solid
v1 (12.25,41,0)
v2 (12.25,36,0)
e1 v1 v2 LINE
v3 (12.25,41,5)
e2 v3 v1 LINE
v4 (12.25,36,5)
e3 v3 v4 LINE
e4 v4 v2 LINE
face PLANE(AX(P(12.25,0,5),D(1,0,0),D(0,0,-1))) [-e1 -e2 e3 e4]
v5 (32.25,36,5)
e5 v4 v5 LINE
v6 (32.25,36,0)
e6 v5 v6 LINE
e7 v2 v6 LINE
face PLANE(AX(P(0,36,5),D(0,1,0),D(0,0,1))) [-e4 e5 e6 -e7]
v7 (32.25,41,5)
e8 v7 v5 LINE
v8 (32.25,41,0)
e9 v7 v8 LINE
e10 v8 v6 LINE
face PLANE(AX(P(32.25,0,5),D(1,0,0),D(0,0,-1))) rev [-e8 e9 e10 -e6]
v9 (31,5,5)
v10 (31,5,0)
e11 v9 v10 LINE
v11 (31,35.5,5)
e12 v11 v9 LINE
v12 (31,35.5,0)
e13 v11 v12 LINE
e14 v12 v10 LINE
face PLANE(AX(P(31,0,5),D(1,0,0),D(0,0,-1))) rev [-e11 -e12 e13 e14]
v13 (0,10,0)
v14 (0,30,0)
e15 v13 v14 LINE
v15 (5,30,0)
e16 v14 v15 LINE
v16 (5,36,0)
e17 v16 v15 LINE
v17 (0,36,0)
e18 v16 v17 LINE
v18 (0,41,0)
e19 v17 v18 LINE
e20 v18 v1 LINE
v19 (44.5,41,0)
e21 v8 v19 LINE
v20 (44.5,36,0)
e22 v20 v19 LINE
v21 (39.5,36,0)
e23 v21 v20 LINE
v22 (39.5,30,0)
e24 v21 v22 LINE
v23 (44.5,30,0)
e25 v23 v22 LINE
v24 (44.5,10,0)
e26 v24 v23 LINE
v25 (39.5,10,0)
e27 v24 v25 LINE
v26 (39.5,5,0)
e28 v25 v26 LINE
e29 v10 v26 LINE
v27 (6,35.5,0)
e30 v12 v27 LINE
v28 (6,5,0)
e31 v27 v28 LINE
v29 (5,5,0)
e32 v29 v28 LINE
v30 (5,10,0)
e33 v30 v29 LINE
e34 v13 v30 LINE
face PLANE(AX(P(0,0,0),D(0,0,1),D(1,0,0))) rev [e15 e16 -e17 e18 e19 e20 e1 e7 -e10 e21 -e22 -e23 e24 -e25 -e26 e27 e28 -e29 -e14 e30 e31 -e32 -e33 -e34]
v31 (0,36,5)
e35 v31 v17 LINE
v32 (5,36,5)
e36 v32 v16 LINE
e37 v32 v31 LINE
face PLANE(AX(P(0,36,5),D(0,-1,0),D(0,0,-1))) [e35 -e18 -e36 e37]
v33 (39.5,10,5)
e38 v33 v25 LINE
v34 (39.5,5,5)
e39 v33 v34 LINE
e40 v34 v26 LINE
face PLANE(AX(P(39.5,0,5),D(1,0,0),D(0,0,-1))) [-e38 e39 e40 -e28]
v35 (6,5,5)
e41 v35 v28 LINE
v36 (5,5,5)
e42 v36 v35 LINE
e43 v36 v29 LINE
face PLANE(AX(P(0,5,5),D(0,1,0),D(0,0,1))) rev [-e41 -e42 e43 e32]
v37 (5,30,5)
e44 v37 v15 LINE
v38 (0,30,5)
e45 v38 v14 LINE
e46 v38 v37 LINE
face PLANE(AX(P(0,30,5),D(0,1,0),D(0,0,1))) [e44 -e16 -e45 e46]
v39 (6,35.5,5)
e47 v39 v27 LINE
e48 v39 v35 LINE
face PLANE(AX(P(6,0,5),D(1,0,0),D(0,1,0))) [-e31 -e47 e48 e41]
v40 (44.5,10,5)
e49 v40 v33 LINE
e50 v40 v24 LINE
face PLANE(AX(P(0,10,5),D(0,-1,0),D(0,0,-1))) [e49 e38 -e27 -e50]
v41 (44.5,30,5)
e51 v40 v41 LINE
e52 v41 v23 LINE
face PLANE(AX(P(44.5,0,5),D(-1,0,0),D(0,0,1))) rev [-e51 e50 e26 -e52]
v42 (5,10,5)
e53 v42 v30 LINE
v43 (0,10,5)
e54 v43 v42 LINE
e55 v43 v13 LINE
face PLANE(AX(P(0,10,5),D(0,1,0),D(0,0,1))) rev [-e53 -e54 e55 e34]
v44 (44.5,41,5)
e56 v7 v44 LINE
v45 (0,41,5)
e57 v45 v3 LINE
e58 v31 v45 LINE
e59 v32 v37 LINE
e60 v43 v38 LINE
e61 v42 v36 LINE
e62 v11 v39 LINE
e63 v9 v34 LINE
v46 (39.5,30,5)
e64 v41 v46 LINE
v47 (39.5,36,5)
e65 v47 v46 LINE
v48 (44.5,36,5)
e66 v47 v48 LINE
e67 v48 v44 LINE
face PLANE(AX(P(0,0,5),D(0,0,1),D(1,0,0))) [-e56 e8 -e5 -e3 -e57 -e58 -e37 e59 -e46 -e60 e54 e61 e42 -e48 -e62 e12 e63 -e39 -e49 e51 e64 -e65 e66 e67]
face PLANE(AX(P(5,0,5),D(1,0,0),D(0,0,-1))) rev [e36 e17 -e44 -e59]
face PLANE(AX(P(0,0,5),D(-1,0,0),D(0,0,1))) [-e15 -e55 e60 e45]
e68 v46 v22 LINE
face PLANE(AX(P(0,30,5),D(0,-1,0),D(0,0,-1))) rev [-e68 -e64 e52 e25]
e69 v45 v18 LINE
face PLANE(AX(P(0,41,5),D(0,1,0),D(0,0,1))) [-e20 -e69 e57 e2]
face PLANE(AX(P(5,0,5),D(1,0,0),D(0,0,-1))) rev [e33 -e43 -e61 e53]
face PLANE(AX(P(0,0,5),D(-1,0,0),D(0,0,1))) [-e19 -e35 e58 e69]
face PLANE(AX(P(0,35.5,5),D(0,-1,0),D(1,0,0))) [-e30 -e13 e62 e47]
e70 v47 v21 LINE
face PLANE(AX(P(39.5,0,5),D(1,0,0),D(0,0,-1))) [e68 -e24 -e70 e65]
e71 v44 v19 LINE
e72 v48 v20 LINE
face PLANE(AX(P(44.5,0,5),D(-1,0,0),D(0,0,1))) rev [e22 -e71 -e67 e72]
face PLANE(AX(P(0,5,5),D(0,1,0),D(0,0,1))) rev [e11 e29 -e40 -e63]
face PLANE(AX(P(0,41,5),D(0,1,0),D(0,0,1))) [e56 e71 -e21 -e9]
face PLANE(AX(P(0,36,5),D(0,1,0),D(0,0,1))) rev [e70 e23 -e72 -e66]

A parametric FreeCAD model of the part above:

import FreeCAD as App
import Part
import Sketcher
from FreeCAD import Vector


def add_polygon(sketch, points):
    """Adds a closed chain of lines whose ends are joined by coincident constraints."""
    first, n = sketch.GeometryCount, len(points)
    for a, b in zip(points, points[1:] + points[:1]):
        sketch.addGeometry(Part.LineSegment(App.Vector(*a, 0), App.Vector(*b, 0)), False)
    for i in range(n):
        sketch.addConstraint(Sketcher.Constraint("Coincident", first + i, 2, first + (i + 1) % n, 1))

doc = App.newDocument("Part")
body = doc.addObject("PartDesign::Body", "Body")

sketch1 = doc.addObject("Sketcher::SketchObject", "Sketch")
body.addObject(sketch1)
sketch1.AttachmentSupport = (doc.XY_Plane, [""])
sketch1.MapMode = "FlatFace"
add_polygon(sketch1, [(0, 36), (5, 36), (5, 30), (0, 30), (0, 10), (5, 10), (5, 5), (6, 5), (6, 35.5), (31, 35.5), (31, 5), (39.5, 5), (39.5, 10), (44.5, 10), (44.5, 30), (39.5, 30), (39.5, 36), (44.5, 36), (44.5, 41), (32.2, 41), (32.2, 36), (12.2, 36), (12.2, 41), (0, 41)])
sketch1.addConstraint(Sketcher.Constraint("Horizontal", 0))
sketch1.addConstraint(Sketcher.Constraint("Vertical", 1))
sketch1.addConstraint(Sketcher.Constraint("Horizontal", 2))
sketch1.addConstraint(Sketcher.Constraint("Vertical", 3))
sketch1.addConstraint(Sketcher.Constraint("Horizontal", 4))
sketch1.addConstraint(Sketcher.Constraint("Vertical", 5))
sketch1.addConstraint(Sketcher.Constraint("Horizontal", 6))
sketch1.addConstraint(Sketcher.Constraint("Vertical", 7))
sketch1.addConstraint(Sketcher.Constraint("Horizontal", 8))
sketch1.addConstraint(Sketcher.Constraint("Vertical", 9))
sketch1.addConstraint(Sketcher.Constraint("Horizontal", 10))
sketch1.addConstraint(Sketcher.Constraint("Vertical", 11))
sketch1.addConstraint(Sketcher.Constraint("Horizontal", 12))
sketch1.addConstraint(Sketcher.Constraint("Vertical", 13))
sketch1.addConstraint(Sketcher.Constraint("Horizontal", 14))
sketch1.addConstraint(Sketcher.Constraint("Vertical", 15))
sketch1.addConstraint(Sketcher.Constraint("Horizontal", 16))
sketch1.addConstraint(Sketcher.Constraint("Vertical", 17))
sketch1.addConstraint(Sketcher.Constraint("Horizontal", 18))
sketch1.addConstraint(Sketcher.Constraint("Vertical", 19))
sketch1.addConstraint(Sketcher.Constraint("Horizontal", 20))
sketch1.addConstraint(Sketcher.Constraint("Vertical", 21))
sketch1.addConstraint(Sketcher.Constraint("Horizontal", 22))
sketch1.addConstraint(Sketcher.Constraint("Vertical", 23))
sketch1.addConstraint(Sketcher.Constraint("PointOnObject", 2, 2, -2))
sketch1.addConstraint(Sketcher.Constraint("PointOnObject", 22, 2, -2))
sketch1.addConstraint(Sketcher.Constraint("Horizontal", 6, 2, 9, 2))
sketch1.addConstraint(Sketcher.Constraint("Horizontal", 4, 2, 11, 2))
sketch1.addConstraint(Sketcher.Constraint("Horizontal", 2, 2, 13, 2))
sketch1.addConstraint(Sketcher.Constraint("Horizontal", 0, 2, 15, 2))
sketch1.addConstraint(Sketcher.Constraint("Horizontal", 16, 2, 19, 2))
sketch1.addConstraint(Sketcher.Constraint("Horizontal", 18, 2, 21, 2))
sketch1.addConstraint(Sketcher.Constraint("Vertical", 1, 2, 4, 2))
sketch1.addConstraint(Sketcher.Constraint("Vertical", 11, 2, 14, 2))
sketch1.addConstraint(Sketcher.Constraint("Vertical", 13, 2, 16, 2))
sketch1.addConstraint(Sketcher.Constraint("Equal", 4, 12))
sketch1.addConstraint(Sketcher.Constraint("Equal", 18, 22))
sketch1.addConstraint(Sketcher.Constraint("Equal", 20, 3))
sketch1.addConstraint(Sketcher.Constraint("Equal", 16, 5))
sketch1.addConstraint(Sketcher.Constraint("Equal", 11, 17))
sketch1.addConstraint(Sketcher.Constraint("DistanceX", 0, 1, 0, 2, 5.0))
sketch1.addConstraint(Sketcher.Constraint("DistanceX", 6, 1, 6, 2, 1.0))
sketch1.addConstraint(Sketcher.Constraint("DistanceX", 8, 1, 8, 2, 25.0))
sketch1.addConstraint(Sketcher.Constraint("DistanceX", 20, 2, 20, 1, 20.0))
sketch1.addConstraint(Sketcher.Constraint("DistanceY", 1, 2, 1, 1, 6.0))
sketch1.addConstraint(Sketcher.Constraint("DistanceX", 10, 1, 10, 2, 8.5))
sketch1.addConstraint(Sketcher.Constraint("DistanceY", 7, 1, 7, 2, 30.5))
sketch1.addConstraint(Sketcher.Constraint("DistanceY", -1, 1, 0, 2, 36.0))
pad1 = doc.addObject("PartDesign::Pad", "Pad")
body.addObject(pad1)
pad1.Profile = sketch1
pad1.Length = 5

doc.recompute()
